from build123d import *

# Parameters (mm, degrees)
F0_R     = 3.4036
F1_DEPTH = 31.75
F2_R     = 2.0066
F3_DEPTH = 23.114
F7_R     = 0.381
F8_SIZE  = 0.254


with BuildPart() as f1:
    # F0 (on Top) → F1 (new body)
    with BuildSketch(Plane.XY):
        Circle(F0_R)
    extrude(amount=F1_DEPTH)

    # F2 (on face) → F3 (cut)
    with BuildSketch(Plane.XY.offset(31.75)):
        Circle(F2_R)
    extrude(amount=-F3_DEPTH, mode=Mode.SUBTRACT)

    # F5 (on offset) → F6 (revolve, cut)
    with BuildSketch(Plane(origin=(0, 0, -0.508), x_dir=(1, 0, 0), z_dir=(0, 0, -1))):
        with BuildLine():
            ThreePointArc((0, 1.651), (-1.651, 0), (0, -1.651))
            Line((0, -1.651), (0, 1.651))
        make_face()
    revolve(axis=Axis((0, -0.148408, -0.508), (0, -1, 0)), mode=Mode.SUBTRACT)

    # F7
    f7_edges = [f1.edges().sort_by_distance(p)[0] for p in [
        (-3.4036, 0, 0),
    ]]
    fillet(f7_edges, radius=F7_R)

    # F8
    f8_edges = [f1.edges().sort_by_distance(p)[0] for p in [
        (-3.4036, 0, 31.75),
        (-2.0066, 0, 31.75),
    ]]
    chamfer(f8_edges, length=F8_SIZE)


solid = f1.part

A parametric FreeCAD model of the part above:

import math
import FreeCAD as App
import Part
import Sketcher
Q = App.Units.Quantity


def edges_at(feature, points):
    """Names of the edges that pass closest to the given points."""
    edges = feature.Shape.Edges
    near = lambda p: min(range(len(edges)), key=lambda i: edges[i].distToShape(Part.Vertex(*p))[0])
    return sorted({f"Edge{near(p) + 1}" for p in points})

doc = App.newDocument("Part")
body = doc.addObject("PartDesign::Body", "Body")

sketch1 = body.newObject("Sketcher::SketchObject", "Sketch")
sketch1.AttachmentSupport = (doc.getObject("XY_Plane"), [""])
sketch1.MapMode = "FlatFace"
sketch1.addGeometry(Part.Circle(App.Vector(0, 0, 0), App.Vector(0, 0, 1), 3.4), False)
sketch1.addConstraint(Sketcher.Constraint("Coincident", 0, 3, -1, 1))
sketch1.addConstraint(Sketcher.Constraint("Diameter", 0, Q("0.268 in")))
pad1 = body.newObject("PartDesign::Pad", "Pad")
pad1.Profile = sketch1
pad1.Length = Q("1.25 in")

sketch2 = body.newObject("Sketcher::SketchObject", "Sketch001")
sketch2.AttachmentSupport = (doc.getObject("XY_Plane"), [""])
sketch2.MapMode = "FlatFace"
sketch2.AttachmentOffset = App.Placement(App.Vector(0, 0, 1.25 * 25.4), App.Rotation())
sketch2.addGeometry(Part.Circle(App.Vector(0, 0, 0), App.Vector(0, 0, 1), 2), False)
sketch2.addConstraint(Sketcher.Constraint("Coincident", 0, 3, -1, 1))
sketch2.addConstraint(Sketcher.Constraint("Diameter", 0, Q("0.158 in")))
pocket1 = body.newObject("PartDesign::Pocket", "Pocket")
pocket1.Profile = sketch2
pocket1.Length = Q("0.91 in")

sketch3 = body.newObject("Sketcher::SketchObject", "Sketch002")
sketch3.AttachmentSupport = (doc.getObject("XY_Plane"), [""])
sketch3.MapMode = "FlatFace"
sketch3.AttachmentOffset = App.Placement(App.Vector(0, 0, -0.02 * 25.4), App.Rotation())
sketch3.addGeometry(Part.ArcOfCircle(Part.Circle(App.Vector(0, 0, 0), App.Vector(0, 0, 1), 1.7), math.radians(90), math.radians(270)), False)
sketch3.addGeometry(Part.LineSegment(App.Vector(0, 1.7, 0), App.Vector(0, -1.7, 0)), False)
sketch3.addConstraint(Sketcher.Constraint("Coincident", 0, 1, 1, 1))
sketch3.addConstraint(Sketcher.Constraint("Coincident", 1, 2, 0, 2))
sketch3.addConstraint(Sketcher.Constraint("Vertical", 1))
sketch3.addConstraint(Sketcher.Constraint("Coincident", 0, 3, -1, 1))
sketch3.addConstraint(Sketcher.Constraint("PointOnObject", 0, 1, -2))
sketch3.addConstraint(Sketcher.Constraint("Radius", 0, Q("0.065 in")))
groove = body.newObject("PartDesign::Groove", "Groove")
groove.Profile = sketch3
groove.ReferenceAxis = (sketch3, ["V_Axis"])
groove.Angle = 360
doc.recompute()

fillet = body.newObject("PartDesign::Fillet", "Fillet")
fillet.Base = (groove, edges_at(groove, [(-3.404, 0, 0)]))
fillet.Radius = Q("0.015 in")
doc.recompute()

chamfer = body.newObject("PartDesign::Chamfer", "Chamfer")
chamfer.Base = (fillet, edges_at(fillet, [(-3.404, 0, 31.75), (-2.007, 0, 31.75)]))
chamfer.Size = Q("0.01 in")

doc.recompute()
